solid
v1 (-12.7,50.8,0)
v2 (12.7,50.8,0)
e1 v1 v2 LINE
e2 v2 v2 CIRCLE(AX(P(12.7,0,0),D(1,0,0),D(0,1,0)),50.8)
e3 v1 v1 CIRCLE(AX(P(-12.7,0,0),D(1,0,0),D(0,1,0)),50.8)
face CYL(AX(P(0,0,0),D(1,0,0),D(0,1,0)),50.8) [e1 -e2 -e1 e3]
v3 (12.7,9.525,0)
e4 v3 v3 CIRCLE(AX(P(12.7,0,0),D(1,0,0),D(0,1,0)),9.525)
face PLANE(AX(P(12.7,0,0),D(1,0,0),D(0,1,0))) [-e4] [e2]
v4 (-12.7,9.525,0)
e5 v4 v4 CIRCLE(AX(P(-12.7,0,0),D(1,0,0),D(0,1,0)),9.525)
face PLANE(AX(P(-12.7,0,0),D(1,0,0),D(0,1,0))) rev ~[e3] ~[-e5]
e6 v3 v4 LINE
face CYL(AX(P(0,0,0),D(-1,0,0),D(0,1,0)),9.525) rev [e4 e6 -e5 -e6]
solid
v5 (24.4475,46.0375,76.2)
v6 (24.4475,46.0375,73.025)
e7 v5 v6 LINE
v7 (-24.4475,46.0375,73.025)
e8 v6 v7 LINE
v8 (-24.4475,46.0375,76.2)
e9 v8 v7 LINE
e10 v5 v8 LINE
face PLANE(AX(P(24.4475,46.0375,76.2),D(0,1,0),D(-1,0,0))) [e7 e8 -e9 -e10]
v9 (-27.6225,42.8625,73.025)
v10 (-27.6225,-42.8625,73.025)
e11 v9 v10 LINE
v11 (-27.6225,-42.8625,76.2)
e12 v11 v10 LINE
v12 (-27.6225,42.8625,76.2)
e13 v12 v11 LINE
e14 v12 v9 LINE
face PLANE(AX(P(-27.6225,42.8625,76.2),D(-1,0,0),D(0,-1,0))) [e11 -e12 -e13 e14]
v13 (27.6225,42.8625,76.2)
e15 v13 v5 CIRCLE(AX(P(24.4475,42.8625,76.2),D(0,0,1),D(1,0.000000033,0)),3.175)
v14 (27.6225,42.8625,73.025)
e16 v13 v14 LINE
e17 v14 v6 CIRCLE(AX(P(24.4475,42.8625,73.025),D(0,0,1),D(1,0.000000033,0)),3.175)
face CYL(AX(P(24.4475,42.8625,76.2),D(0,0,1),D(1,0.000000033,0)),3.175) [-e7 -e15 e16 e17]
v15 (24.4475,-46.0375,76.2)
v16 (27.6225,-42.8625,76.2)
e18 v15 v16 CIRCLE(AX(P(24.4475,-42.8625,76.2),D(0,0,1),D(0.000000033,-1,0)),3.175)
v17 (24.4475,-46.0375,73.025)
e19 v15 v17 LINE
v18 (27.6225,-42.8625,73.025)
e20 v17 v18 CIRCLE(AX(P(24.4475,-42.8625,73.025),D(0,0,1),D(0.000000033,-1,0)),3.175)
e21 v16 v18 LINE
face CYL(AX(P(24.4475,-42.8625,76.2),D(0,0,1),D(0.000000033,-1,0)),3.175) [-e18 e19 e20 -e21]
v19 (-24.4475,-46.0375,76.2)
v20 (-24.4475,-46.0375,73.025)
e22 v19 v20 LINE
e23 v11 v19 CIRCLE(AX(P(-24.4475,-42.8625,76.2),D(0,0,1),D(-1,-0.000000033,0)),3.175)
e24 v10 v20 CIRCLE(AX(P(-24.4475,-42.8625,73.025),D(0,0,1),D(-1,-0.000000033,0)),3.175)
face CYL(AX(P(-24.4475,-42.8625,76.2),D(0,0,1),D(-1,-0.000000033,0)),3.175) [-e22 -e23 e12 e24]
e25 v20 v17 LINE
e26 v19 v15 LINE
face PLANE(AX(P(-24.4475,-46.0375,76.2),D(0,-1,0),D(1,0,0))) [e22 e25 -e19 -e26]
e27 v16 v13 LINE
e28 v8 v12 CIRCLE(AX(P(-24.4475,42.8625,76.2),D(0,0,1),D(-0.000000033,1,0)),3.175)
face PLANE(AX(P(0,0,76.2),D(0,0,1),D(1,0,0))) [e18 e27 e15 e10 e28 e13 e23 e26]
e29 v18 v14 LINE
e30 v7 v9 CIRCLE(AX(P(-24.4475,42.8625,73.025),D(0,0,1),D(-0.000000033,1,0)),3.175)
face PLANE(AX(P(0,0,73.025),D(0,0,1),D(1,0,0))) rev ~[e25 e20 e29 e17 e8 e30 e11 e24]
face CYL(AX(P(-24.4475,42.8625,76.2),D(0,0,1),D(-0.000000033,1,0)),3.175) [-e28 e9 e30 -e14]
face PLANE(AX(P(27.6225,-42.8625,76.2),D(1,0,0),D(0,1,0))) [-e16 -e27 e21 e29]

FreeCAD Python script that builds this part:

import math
import FreeCAD as App
import Part
import Sketcher
from FreeCAD import Vector
Q = App.Units.Quantity

doc = App.newDocument("Part")
body = doc.addObject("PartDesign::Body", "Body")

sketch1 = body.newObject("Sketcher::SketchObject", "Sketch")
sketch1.AttachmentSupport = (doc.getObject("YZ_Plane"), [""])
sketch1.MapMode = "FlatFace"
sketch1.addGeometry([
    Part.Circle(Vector(0, 0, 0), Vector(0, 0, 1), 51),
    Part.Circle(Vector(0, 0, 0), Vector(0, 0, 1), 10),
], False)
sketch1.addConstraint([
    Sketcher.Constraint("Coincident", 0, 3, -1, 1),
    Sketcher.Constraint("Coincident", 1, 3, -1, 1),
    Sketcher.Constraint("Diameter", 0, Q("4 in")),
    Sketcher.Constraint("Diameter", 1, Q("0.75 in")),
])
pad1 = body.newObject("PartDesign::Pad", "Pad")
pad1.Profile = sketch1
pad1.Length = Q("1 in")
pad1.Midplane = True
body2 = doc.addObject("PartDesign::Body", "Body001")

sketch2 = body2.newObject("Sketcher::SketchObject", "Sketch001")
sketch2.AttachmentSupport = (doc.getObject("XY_Plane001"), [""])
sketch2.MapMode = "FlatFace"
sketch2.AttachmentOffset = App.Placement(Vector(0, 0, 3 * 25.4), App.Rotation())
sketch2.addGeometry([
    Part.ArcOfCircle(Part.Circle(Vector(24.4, 42.9, 0), Vector(0, 0, 1), 3.2), math.radians(0), math.radians(90)),
    Part.LineSegment(Vector(24.4, 46, 0), Vector(-24.4, 46, 0)),
    Part.ArcOfCircle(Part.Circle(Vector(-24.4, 42.9, 0), Vector(0, 0, 1), 3.2), math.radians(90), math.radians(180)),
    Part.LineSegment(Vector(-27.6, 42.9, 0), Vector(-27.6, -42.9, 0)),
    Part.ArcOfCircle(Part.Circle(Vector(-24.4, -42.9, 0), Vector(0, 0, 1), 3.2), math.radians(-180), math.radians(-90)),
    Part.LineSegment(Vector(-24.4, -46, 0), Vector(24.4, -46, 0)),
    Part.ArcOfCircle(Part.Circle(Vector(24.4, -42.9, 0), Vector(0, 0, 1), 3.2), math.radians(-90), math.radians(0)),
    Part.LineSegment(Vector(27.6, -42.9, 0), Vector(27.6, 42.9, 0)),
], False)
sketch2.addConstraint([
    Sketcher.Constraint("Tangent", 0, 2, 1, 1),
    Sketcher.Constraint("Tangent", 1, 2, 2, 1),
    Sketcher.Constraint("Tangent", 2, 2, 3, 1),
    Sketcher.Constraint("Tangent", 3, 2, 4, 1),
    Sketcher.Constraint("Tangent", 4, 2, 5, 1),
    Sketcher.Constraint("Tangent", 5, 2, 6, 1),
    Sketcher.Constraint("Tangent", 6, 2, 7, 1),
    Sketcher.Constraint("Tangent", 7, 2, 0, 1),
    Sketcher.Constraint("Horizontal", 1),
    Sketcher.Constraint("Vertical", 3),
    Sketcher.Constraint("Horizontal", 5),
    Sketcher.Constraint("Vertical", 7),
    Sketcher.Constraint("Equal", 0, 2),
    Sketcher.Constraint("Equal", 2, 4),
    Sketcher.Constraint("Equal", 4, 6),
    Sketcher.Constraint("Symmetric", 0, 3, 4, 3, -1, 1),
    Sketcher.Constraint("Radius", 0, Q("0.125 in")),
    Sketcher.Constraint("DistanceY", 6, 3, 0, 2, Q("3.5 in")),
    Sketcher.Constraint("DistanceX", 1, 2, 1, 1, Q("1.925 in")),
])
pad2 = body2.newObject("PartDesign::Pad", "Pad001")
pad2.Profile = sketch2
pad2.Length = Q("0.125 in")
pad2.Reversed = True

doc.recompute()
